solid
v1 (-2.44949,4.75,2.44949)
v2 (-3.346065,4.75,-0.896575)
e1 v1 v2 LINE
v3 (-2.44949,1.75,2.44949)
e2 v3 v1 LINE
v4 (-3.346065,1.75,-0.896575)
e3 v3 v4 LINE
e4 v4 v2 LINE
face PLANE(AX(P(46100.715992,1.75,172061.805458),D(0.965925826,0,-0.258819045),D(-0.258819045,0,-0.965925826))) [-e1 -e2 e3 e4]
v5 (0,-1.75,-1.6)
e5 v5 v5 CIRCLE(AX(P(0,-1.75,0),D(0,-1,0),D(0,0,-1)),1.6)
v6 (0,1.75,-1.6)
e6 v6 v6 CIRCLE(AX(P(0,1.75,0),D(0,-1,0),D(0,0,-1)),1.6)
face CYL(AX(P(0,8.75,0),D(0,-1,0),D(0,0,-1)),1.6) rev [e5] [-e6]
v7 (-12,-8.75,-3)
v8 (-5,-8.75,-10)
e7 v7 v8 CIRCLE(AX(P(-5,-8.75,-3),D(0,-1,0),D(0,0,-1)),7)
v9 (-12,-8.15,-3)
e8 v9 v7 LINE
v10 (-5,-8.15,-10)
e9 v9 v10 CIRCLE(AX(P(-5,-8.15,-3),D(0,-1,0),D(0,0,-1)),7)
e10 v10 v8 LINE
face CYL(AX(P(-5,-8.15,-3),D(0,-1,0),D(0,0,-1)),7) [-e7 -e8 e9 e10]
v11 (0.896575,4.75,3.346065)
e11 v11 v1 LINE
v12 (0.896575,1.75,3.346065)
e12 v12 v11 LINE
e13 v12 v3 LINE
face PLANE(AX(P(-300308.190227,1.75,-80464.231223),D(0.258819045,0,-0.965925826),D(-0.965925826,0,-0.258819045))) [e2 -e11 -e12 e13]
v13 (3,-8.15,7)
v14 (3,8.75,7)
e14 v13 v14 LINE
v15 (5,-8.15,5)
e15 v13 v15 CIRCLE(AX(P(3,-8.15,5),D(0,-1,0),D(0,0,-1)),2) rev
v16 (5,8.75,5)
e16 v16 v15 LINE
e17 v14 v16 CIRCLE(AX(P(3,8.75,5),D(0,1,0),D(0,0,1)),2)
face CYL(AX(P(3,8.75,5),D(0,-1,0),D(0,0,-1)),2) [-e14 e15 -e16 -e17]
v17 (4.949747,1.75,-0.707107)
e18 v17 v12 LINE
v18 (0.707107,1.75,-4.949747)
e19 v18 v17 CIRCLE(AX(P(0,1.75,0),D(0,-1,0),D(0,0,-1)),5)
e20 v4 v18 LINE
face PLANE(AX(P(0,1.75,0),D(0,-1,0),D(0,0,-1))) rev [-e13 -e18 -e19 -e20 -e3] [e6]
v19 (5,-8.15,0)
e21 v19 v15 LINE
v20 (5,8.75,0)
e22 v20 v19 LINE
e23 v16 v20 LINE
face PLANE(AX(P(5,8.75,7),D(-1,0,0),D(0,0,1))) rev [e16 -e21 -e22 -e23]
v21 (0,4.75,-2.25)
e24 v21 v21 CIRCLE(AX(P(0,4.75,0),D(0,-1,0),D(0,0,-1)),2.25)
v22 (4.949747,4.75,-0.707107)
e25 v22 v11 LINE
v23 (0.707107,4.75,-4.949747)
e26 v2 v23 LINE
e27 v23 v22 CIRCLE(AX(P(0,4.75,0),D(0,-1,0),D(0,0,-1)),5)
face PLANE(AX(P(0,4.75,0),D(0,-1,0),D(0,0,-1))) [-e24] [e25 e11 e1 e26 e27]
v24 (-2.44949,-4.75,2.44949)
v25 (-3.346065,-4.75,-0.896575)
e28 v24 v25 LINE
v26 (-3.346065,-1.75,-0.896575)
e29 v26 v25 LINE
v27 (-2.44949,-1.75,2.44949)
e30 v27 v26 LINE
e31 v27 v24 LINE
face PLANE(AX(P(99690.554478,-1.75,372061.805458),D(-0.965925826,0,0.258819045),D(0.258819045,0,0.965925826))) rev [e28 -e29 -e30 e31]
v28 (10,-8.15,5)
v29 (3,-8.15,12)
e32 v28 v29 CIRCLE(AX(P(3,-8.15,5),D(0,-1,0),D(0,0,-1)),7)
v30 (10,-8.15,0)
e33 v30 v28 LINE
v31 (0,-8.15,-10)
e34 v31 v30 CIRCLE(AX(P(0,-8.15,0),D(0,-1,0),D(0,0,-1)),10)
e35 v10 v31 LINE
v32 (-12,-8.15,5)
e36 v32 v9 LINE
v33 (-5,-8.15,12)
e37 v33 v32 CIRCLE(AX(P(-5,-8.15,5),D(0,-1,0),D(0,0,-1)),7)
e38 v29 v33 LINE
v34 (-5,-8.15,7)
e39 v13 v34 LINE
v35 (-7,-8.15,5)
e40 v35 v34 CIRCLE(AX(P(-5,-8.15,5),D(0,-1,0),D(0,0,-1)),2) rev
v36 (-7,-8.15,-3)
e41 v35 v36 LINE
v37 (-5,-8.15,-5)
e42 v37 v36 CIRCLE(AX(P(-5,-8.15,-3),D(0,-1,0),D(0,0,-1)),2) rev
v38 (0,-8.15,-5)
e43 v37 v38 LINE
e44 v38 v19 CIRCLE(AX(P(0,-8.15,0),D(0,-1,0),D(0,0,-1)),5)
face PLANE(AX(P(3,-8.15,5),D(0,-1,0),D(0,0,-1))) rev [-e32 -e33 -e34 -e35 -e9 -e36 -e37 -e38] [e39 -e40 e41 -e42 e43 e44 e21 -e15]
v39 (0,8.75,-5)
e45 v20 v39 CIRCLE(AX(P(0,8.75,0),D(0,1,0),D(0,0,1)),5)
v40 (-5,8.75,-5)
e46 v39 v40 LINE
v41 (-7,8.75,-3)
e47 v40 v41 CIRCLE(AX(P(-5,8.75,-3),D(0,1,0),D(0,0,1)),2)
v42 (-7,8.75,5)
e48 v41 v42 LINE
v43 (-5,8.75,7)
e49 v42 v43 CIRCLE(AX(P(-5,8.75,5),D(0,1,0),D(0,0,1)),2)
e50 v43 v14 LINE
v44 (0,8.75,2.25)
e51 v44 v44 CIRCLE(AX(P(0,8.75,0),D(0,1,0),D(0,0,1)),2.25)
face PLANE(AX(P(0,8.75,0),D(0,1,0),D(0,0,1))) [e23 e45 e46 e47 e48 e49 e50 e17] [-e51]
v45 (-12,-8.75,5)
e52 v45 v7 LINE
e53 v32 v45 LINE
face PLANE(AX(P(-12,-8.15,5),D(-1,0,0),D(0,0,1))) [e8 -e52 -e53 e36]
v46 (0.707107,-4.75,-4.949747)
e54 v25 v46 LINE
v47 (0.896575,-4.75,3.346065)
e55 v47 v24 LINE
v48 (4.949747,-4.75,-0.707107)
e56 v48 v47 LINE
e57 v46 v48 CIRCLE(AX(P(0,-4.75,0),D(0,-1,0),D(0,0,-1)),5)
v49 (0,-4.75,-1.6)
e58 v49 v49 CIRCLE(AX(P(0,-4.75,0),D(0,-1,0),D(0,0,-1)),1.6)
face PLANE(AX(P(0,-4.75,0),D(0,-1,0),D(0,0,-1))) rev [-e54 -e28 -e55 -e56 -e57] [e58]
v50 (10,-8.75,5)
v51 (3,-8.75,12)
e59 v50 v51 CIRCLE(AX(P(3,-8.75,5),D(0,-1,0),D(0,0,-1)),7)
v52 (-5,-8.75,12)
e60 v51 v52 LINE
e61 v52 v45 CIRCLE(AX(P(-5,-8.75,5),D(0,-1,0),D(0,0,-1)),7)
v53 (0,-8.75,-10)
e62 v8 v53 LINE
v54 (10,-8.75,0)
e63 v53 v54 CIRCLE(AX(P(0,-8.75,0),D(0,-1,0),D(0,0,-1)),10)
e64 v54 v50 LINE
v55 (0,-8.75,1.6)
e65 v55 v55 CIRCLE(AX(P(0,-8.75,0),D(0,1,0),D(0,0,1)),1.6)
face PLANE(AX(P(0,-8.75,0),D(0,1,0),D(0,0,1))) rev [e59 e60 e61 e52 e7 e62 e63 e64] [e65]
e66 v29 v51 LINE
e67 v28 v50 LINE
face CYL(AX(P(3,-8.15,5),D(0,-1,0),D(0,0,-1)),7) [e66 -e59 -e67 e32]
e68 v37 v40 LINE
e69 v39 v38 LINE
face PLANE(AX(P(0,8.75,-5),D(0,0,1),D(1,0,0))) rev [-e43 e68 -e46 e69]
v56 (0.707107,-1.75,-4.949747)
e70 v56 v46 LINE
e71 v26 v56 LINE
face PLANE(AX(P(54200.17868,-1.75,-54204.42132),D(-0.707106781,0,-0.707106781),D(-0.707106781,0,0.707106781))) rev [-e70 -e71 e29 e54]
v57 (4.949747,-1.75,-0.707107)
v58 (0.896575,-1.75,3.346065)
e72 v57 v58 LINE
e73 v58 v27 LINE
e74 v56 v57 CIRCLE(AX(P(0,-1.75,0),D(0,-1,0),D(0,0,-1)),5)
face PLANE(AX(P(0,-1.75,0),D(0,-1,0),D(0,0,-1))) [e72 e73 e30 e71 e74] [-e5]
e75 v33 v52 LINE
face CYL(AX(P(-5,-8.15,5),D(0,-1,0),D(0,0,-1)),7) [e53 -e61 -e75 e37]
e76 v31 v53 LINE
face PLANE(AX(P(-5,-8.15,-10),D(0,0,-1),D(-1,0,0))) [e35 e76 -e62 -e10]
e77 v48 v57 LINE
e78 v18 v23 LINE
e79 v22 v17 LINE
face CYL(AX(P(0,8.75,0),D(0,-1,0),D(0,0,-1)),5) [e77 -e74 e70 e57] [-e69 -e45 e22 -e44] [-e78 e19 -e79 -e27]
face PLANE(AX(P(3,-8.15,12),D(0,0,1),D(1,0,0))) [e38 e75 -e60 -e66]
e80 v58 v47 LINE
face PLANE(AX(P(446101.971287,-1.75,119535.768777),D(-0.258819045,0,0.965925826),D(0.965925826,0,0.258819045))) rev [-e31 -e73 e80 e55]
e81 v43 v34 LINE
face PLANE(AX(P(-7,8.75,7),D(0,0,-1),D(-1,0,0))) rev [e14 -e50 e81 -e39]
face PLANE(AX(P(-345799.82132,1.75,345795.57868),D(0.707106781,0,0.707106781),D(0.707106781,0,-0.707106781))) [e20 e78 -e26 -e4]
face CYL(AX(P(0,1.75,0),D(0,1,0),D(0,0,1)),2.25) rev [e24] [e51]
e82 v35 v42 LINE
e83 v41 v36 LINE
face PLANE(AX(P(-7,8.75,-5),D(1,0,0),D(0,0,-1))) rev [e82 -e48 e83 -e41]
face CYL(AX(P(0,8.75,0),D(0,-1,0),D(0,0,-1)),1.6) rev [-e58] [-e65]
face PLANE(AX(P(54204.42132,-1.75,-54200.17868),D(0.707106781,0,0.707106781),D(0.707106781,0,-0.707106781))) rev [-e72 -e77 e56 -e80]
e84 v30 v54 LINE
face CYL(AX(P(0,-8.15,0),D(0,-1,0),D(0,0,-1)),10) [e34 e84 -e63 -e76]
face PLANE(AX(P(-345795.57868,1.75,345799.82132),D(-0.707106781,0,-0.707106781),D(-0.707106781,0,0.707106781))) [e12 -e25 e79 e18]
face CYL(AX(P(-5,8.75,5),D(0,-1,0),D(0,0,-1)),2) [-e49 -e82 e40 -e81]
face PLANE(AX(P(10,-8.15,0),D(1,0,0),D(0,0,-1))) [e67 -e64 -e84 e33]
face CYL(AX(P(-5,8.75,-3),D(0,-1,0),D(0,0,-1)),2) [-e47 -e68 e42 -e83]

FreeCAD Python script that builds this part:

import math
import FreeCAD as App
import Part
import Sketcher

V = App.Vector
Q = App.Units.Quantity


def edges_at(feature, points):
    """Names of the edges that pass closest to the given points."""
    edges = feature.Shape.Edges
    near = lambda p: min(range(len(edges)), key=lambda i: edges[i].distToShape(Part.Vertex(*p))[0])
    return sorted({f"Edge{near(p) + 1}" for p in points})

doc = App.newDocument("Part")
body = doc.addObject("PartDesign::Body", "Body")

sketch1 = doc.addObject("Sketcher::SketchObject", "Sketch")
body.addObject(sketch1)
sketch1.AttachmentSupport = (doc.XZ_Plane, [""])
sketch1.MapMode = "FlatFace"
sketch1.addGeometry([
    Part.LineSegment(V(0, -5, 0), V(-7, -5, 0)),
    Part.LineSegment(V(-7, -5, 0), V(-7, 7, 0)),
    Part.LineSegment(V(-7, 7, 0), V(5, 7, 0)),
    Part.LineSegment(V(5, 7, 0), V(5, 0, 0)),
    Part.ArcOfCircle(Part.Circle(V(0, 0, 0), V(0, 0, 1), 5), math.radians(-90), math.radians(0)),
    Part.Circle(V(0, 0, 0), V(0, 0, 1), 1.6),
], False)
sketch1.addConstraint([
    Sketcher.Constraint("Coincident", 0, 2, 1, 1),
    Sketcher.Constraint("Coincident", 1, 2, 2, 1),
    Sketcher.Constraint("Coincident", 2, 2, 3, 1),
    Sketcher.Constraint("Tangent", 3, 2, 4, 2),
    Sketcher.Constraint("Tangent", 4, 1, 0, 1),
    Sketcher.Constraint("Horizontal", 0),
    Sketcher.Constraint("Vertical", 1),
    Sketcher.Constraint("Horizontal", 2),
    Sketcher.Constraint("Vertical", 3),
    Sketcher.Constraint("Coincident", 4, 3, -1, 1),
    Sketcher.Constraint("Coincident", 5, 3, -1, 1),
    Sketcher.Constraint("Equal", 2, 1),
    Sketcher.Constraint("Radius", 4, Q("5 mm")),
    Sketcher.Constraint("Diameter", 5, Q("3.2 mm")),
    Sketcher.Constraint("DistanceX", 0, 2, 0, 1, Q("7 mm")),
])
pad1 = doc.addObject("PartDesign::Pad", "Pad")
body.addObject(pad1)
pad1.Profile = sketch1
pad1.Length = 17.5
pad1.Midplane = True
doc.recompute()

fillet = doc.addObject("PartDesign::Fillet", "Fillet")
body.addObject(fillet)
fillet.Base = (pad1, edges_at(pad1, [(5, 0, 7), (-7, 0, 7), (-7, 0, -5)]))
fillet.Radius = 2

sketch2 = doc.addObject("Sketcher::SketchObject", "Sketch001")
body.addObject(sketch2)
sketch2.AttachmentSupport = (doc.XZ_Plane, [""])
sketch2.MapMode = "FlatFace"
sketch2.AttachmentOffset = App.Placement(V(0, 0, -4.75), App.Rotation())
sketch2.addGeometry([
    Part.LineSegment(V(0.8, -5, 0), V(-3.3, -0.9, 0)),
    Part.LineSegment(V(-3.3, -0.9, 0), V(-2.4, 2.4, 0)),
    Part.LineSegment(V(-2.4, 2.4, 0), V(0.9, 3.3, 0)),
    Part.LineSegment(V(0.9, 3.3, 0), V(5, -0.8, 0)),
    Part.LineSegment(V(5, -0.8, 0), V(5, -5, 0)),
    Part.LineSegment(V(5, -5, 0), V(0.8, -5, 0)),
], False)
sketch2.addConstraint([
    Sketcher.Constraint("Coincident", 0, 2, 1, 1),
    Sketcher.Constraint("Coincident", 1, 2, 2, 1),
    Sketcher.Constraint("Coincident", 2, 2, 3, 1),
    Sketcher.Constraint("Coincident", 3, 2, 4, 1),
    Sketcher.Constraint("Coincident", 4, 2, 5, 1),
    Sketcher.Constraint("Coincident", 5, 2, 0, 1),
    Sketcher.Constraint("Vertical", 4),
    Sketcher.Constraint("Horizontal", 5),
    Sketcher.Constraint("Parallel", 0, 3),
    Sketcher.Constraint("Equal", 5, 4),
    Sketcher.Constraint("Equal", 1, 2),
    Sketcher.Constraint("Equal", 0, 3),
    Sketcher.Constraint("Angle", 0, Q("135 deg")),
    Sketcher.Constraint("Angle", 1, Q("75 deg")),
    Sketcher.Constraint("DistanceX", -1, 1, 3, 2, Q("5 mm")),
    Sketcher.Constraint("DistanceY", 4, 2, -1, 1, Q("5 mm")),
    Sketcher.Constraint("Distance", 1, Q("3.464102 mm")),
    Sketcher.Constraint("Distance", 0, Q("5.803119 mm")),
])
pocket1 = doc.addObject("PartDesign::Pocket", "Pocket")
body.addObject(pocket1)
pocket1.Profile = sketch2
pocket1.Length = 3
pocket1.Reversed = True

sketch3 = doc.addObject("Sketcher::SketchObject", "Sketch002")
body.addObject(sketch3)
sketch3.AttachmentSupport = (doc.XZ_Plane, [""])
sketch3.MapMode = "FlatFace"
sketch3.AttachmentOffset = App.Placement(V(0, 0, 4.75), App.Rotation())
sketch3.addGeometry([
    Part.LineSegment(V(0.8, -5, 0), V(-3.3, -0.9, 0)),
    Part.LineSegment(V(-3.3, -0.9, 0), V(-2.4, 2.4, 0)),
    Part.LineSegment(V(-2.4, 2.4, 0), V(0.9, 3.3, 0)),
    Part.LineSegment(V(0.9, 3.3, 0), V(5, -0.8, 0)),
    Part.LineSegment(V(5, -0.8, 0), V(5, -5, 0)),
    Part.LineSegment(V(5, -5, 0), V(0.8, -5, 0)),
], False)
sketch3.addConstraint([
    Sketcher.Constraint("Coincident", 0, 2, 1, 1),
    Sketcher.Constraint("Coincident", 1, 2, 2, 1),
    Sketcher.Constraint("Coincident", 2, 2, 3, 1),
    Sketcher.Constraint("Coincident", 3, 2, 4, 1),
    Sketcher.Constraint("Coincident", 4, 2, 5, 1),
    Sketcher.Constraint("Coincident", 5, 2, 0, 1),
    Sketcher.Constraint("Vertical", 4),
    Sketcher.Constraint("Horizontal", 5),
    Sketcher.Constraint("Parallel", 0, 3),
    Sketcher.Constraint("Equal", 5, 4),
    Sketcher.Constraint("Equal", 1, 2),
    Sketcher.Constraint("Equal", 0, 3),
    Sketcher.Constraint("Angle", 0, Q("135 deg")),
    Sketcher.Constraint("Angle", 1, Q("75 deg")),
    Sketcher.Constraint("DistanceX", -1, 1, 3, 2, Q("5 mm")),
    Sketcher.Constraint("DistanceY", 4, 2, -1, 1, Q("5 mm")),
    Sketcher.Constraint("Distance", 1, Q("3.464102 mm")),
    Sketcher.Constraint("Distance", 0, Q("5.803119 mm")),
])
pocket2 = doc.addObject("PartDesign::Pocket", "Pocket001")
body.addObject(pocket2)
pocket2.Profile = sketch3
pocket2.Length = 3

sketch4 = doc.addObject("Sketcher::SketchObject", "Sketch003")
body.addObject(sketch4)
sketch4.AttachmentSupport = (doc.XZ_Plane, [""])
sketch4.MapMode = "FlatFace"
sketch4.AttachmentOffset = App.Placement(V(0, 0, -8.75), App.Rotation())
sketch4.addGeometry(Part.Circle(V(0, 0, 0), V(0, 0, 1), 2.2), False)
sketch4.addConstraint([
    Sketcher.Constraint("Coincident", 0, 3, -1, 1),
    Sketcher.Constraint("Diameter", 0, Q("4.5 mm")),
])
pocket3 = doc.addObject("PartDesign::Pocket", "Pocket002")
body.addObject(pocket3)
pocket3.Profile = sketch4
pocket3.Length = 7
pocket3.Reversed = True

sketch5 = doc.addObject("Sketcher::SketchObject", "Sketch004")
body.addObject(sketch5)
sketch5.AttachmentSupport = (doc.XZ_Plane, [""])
sketch5.MapMode = "FlatFace"
sketch5.AttachmentOffset = App.Placement(V(0, 0, 8.75), App.Rotation())
sketch5.addGeometry([
    Part.LineSegment(V(10, 0, 0), V(10, 5, 0)),
    Part.ArcOfCircle(Part.Circle(V(3, 5, 0), V(0, 0, 1), 7), math.radians(0), math.radians(90)),
    Part.LineSegment(V(3, 12, 0), V(-5, 12, 0)),
    Part.ArcOfCircle(Part.Circle(V(-5, 5, 0), V(0, 0, 1), 7), math.radians(90), math.radians(180)),
    Part.LineSegment(V(-12, 5, 0), V(-12, -3, 0)),
    Part.ArcOfCircle(Part.Circle(V(-5, -3, 0), V(0, 0, 1), 7), math.radians(-180), math.radians(-90)),
    Part.LineSegment(V(-5, -10, 0), V(0, -10, 0)),
    Part.ArcOfCircle(Part.Circle(V(0, 0, 0), V(0, 0, 1), 10), math.radians(-90), math.radians(0)),
    Part.Circle(V(0, 0, 0), V(0, 0, 1), 1.6),
], False)
sketch5.addConstraint([
    Sketcher.Constraint("Tangent", 0, 2, 1, 1),
    Sketcher.Constraint("Tangent", 1, 2, 2, 1),
    Sketcher.Constraint("Tangent", 2, 2, 3, 1),
    Sketcher.Constraint("Tangent", 3, 2, 4, 1),
    Sketcher.Constraint("Tangent", 4, 2, 5, 1),
    Sketcher.Constraint("Tangent", 5, 2, 6, 1),
    Sketcher.Constraint("Tangent", 6, 2, 7, 1),
    Sketcher.Constraint("Tangent", 7, 2, 0, 1),
    Sketcher.Constraint("Vertical", 0),
    Sketcher.Constraint("Horizontal", 2),
    Sketcher.Constraint("Vertical", 4),
    Sketcher.Constraint("Horizontal", 6),
    Sketcher.Constraint("Coincident", 7, 3, -1, 1),
    Sketcher.Constraint("Coincident", 8, 3, -1, 1),
    Sketcher.Constraint("Equal", 1, 3),
    Sketcher.Constraint("Equal", 3, 5),
    Sketcher.Constraint("Equal", 6, 0),
    Sketcher.Constraint("Radius", 1, Q("7 mm")),
    Sketcher.Constraint("Radius", 7, Q("10 mm")),
    Sketcher.Constraint("Diameter", 8, Q("3.2 mm")),
    Sketcher.Constraint("DistanceX", 2, 2, 2, 1, Q("8 mm")),
])
pad2 = doc.addObject("PartDesign::Pad", "Pad001")
body.addObject(pad2)
pad2.Profile = sketch5
pad2.Length = 0.6
pad2.Reversed = True

doc.recompute()
